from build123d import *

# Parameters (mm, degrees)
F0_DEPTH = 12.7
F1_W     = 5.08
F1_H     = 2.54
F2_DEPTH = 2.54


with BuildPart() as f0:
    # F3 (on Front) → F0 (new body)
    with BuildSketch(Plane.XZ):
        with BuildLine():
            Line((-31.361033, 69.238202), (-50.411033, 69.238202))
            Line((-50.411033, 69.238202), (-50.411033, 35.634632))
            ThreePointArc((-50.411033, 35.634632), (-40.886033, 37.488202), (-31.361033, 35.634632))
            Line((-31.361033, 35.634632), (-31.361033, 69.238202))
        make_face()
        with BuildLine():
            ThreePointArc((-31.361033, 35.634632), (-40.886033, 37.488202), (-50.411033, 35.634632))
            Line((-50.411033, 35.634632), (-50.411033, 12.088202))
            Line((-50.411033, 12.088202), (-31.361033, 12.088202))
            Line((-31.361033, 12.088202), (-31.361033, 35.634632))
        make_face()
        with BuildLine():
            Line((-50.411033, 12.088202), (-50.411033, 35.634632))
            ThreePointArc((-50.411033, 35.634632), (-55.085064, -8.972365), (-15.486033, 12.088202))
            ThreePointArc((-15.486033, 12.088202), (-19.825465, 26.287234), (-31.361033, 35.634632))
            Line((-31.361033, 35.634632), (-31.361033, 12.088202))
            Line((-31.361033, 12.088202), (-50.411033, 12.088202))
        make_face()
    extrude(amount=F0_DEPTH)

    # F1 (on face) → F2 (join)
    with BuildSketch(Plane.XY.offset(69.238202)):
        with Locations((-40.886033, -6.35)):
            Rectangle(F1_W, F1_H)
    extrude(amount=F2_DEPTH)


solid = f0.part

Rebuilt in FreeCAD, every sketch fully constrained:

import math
import FreeCAD as App
import Part
import Sketcher
from FreeCAD import Vector
Q = App.Units.Quantity


def add_polygon(sketch, points):
    """Adds a closed chain of lines whose ends are joined by coincident constraints."""
    first, n = sketch.GeometryCount, len(points)
    for a, b in zip(points, points[1:] + points[:1]):
        sketch.addGeometry(Part.LineSegment(App.Vector(*a, 0), App.Vector(*b, 0)), False)
    for i in range(n):
        sketch.addConstraint(Sketcher.Constraint("Coincident", first + i, 2, first + (i + 1) % n, 1))

doc = App.newDocument("Part")
body = doc.addObject("PartDesign::Body", "Body")

# Sketch on XZ plane
sketch1 = body.newObject("Sketcher::SketchObject", "Sketch")
sketch1.AttachmentSupport = (doc.getObject("XZ_Plane"), [""])
sketch1.MapMode = "FlatFace"
sketch1.addGeometry([
    Part.LineSegment(Vector(-31, 69, 0), Vector(-50, 69, 0)),  # 0
    Part.LineSegment(Vector(-50, 69, 0), Vector(-50, 36, 0)),  # 1
    Part.ArcOfCircle(Part.Circle(Vector(-41, 12, 0), Vector(0, 0, 1), 25), math.radians(112), math.radians(360)),  # 2
    Part.ArcOfCircle(Part.Circle(Vector(-41, 12, 0), Vector(0, 0, 1), 25), math.radians(0), math.radians(68)),  # 3
    Part.LineSegment(Vector(-31, 36, 0), Vector(-31, 69, 0)),  # 4
], False)
sketch1.addConstraint([
    Sketcher.Constraint("Coincident", 0, 2, 1, 1),
    Sketcher.Constraint("Coincident", 1, 2, 2, 1),
    Sketcher.Constraint("Tangent", 2, 2, 3, 1),
    Sketcher.Constraint("Coincident", 3, 2, 4, 1),
    Sketcher.Constraint("Coincident", 4, 2, 0, 1),
    Sketcher.Constraint("Horizontal", 0),
    Sketcher.Constraint("Vertical", 1),
    Sketcher.Constraint("Vertical", 4),
    Sketcher.Constraint("Horizontal", 1, 2, 3, 2),
    Sketcher.Constraint("Radius", 2, Q("1 in")),
    Sketcher.Constraint("Radius", 3, Q("0.9999999 in")),
    Sketcher.Constraint("DistanceX", 0, 2, 0, 1, Q("0.75 in")),
    Sketcher.Constraint("DistanceY", 3, 3, 0, 2, Q("2.2499999 in")),
    Sketcher.Constraint("DistanceY", 2, 2, 0, 2, Q("2.25 in")),
    Sketcher.Constraint("DistanceY", -1, 1, 0, 2, Q("69.238202 mm")),
    Sketcher.Constraint("DistanceX", 3, 3, -1, 1, Q("40.886029 mm")),
])
pad1 = body.newObject("PartDesign::Pad", "Pad")
pad1.Profile = sketch1
pad1.Length = Q("0.5 in")

# Sketch on XY plane
sketch2 = body.newObject("Sketcher::SketchObject", "Sketch001")
sketch2.AttachmentSupport = (doc.getObject("XY_Plane"), [""])
sketch2.MapMode = "FlatFace"
sketch2.AttachmentOffset = App.Placement(Vector(0, 0, 69.238202), App.Rotation())
add_polygon(sketch2, [(-43.4, -5.1), (-43.4, -7.6), (-38.3, -7.6), (-38.3, -5.1)])  # lines 0-3
sketch2.addConstraint([
    Sketcher.Constraint("Vertical", 0),
    Sketcher.Constraint("Horizontal", 1),
    Sketcher.Constraint("Vertical", 2),
    Sketcher.Constraint("Horizontal", 3),
    Sketcher.Constraint("DistanceX", 1, 1, 1, 2, Q("0.2 in")),
    Sketcher.Constraint("DistanceY", 0, 2, 0, 1, Q("0.1 in")),
    Sketcher.Constraint("DistanceY", 0, 2, -1, 1, Q("0.3 in")),
    Sketcher.Constraint("DistanceX", 0, 2, -1, 1, Q("43.426033 mm")),
])
pad2 = body.newObject("PartDesign::Pad", "Pad001")
pad2.Profile = sketch2
pad2.Length = Q("0.1 in")

doc.recompute()
